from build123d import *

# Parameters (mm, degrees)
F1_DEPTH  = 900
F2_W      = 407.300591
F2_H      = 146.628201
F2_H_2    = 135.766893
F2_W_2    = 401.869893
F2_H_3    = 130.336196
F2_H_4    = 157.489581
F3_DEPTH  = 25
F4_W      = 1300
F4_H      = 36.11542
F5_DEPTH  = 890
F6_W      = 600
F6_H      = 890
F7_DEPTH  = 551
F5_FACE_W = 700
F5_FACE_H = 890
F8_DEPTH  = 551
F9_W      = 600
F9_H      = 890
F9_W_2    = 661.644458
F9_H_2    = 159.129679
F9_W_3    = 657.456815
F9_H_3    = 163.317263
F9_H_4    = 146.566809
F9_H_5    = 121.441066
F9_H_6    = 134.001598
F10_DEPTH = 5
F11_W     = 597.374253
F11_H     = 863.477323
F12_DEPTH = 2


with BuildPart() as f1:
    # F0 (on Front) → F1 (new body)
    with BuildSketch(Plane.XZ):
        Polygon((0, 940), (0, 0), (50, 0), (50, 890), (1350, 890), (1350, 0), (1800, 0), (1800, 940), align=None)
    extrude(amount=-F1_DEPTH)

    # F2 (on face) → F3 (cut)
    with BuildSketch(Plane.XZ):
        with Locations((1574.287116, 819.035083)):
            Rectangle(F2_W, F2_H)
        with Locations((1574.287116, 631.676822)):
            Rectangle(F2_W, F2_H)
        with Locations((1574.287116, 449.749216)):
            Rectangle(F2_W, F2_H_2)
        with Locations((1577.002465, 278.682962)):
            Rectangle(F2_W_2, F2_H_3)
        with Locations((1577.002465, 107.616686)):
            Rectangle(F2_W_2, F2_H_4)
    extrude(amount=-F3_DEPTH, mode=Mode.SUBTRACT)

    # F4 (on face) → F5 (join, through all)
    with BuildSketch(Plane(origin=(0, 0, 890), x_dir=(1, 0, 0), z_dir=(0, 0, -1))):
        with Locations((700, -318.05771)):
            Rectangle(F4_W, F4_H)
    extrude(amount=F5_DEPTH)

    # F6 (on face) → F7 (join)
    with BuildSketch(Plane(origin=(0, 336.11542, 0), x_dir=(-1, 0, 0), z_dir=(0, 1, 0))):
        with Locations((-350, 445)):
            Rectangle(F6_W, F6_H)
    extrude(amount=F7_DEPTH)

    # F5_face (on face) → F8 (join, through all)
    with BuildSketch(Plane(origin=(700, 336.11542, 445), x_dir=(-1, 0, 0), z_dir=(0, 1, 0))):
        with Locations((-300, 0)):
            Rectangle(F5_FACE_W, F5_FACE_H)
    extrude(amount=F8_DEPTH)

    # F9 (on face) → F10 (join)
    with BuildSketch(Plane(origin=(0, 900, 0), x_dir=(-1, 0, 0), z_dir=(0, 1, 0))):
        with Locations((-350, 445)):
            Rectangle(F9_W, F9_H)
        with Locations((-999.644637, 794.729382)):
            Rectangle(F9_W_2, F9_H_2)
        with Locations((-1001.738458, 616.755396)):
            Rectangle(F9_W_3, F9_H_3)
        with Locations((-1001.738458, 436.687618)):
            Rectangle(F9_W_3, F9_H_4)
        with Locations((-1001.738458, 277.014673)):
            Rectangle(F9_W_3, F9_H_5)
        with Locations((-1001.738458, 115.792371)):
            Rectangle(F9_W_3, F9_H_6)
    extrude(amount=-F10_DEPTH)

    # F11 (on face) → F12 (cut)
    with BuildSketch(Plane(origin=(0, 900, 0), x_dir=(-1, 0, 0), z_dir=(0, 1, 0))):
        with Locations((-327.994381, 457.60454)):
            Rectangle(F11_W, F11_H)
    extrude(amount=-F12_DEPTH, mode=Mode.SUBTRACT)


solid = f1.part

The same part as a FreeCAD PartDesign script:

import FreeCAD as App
import Part
import Sketcher
Q = App.Units.Quantity

doc = App.newDocument("Part")
body = doc.addObject("PartDesign::Body", "Body")
body.AllowCompound = True

sketch1 = body.newObject("Sketcher::SketchObject", "Sketch")
sketch1.AttachmentSupport = (doc.getObject("XZ_Plane"), [""])
sketch1.MapMode = "FlatFace"
sketch1.addGeometry([
    Part.LineSegment(App.Vector(0, 940, 0), App.Vector(0, 0, 0)),
    Part.LineSegment(App.Vector(0, 0, 0), App.Vector(50, 0, 0)),
    Part.LineSegment(App.Vector(50, 0, 0), App.Vector(50, 890, 0)),
    Part.LineSegment(App.Vector(50, 890, 0), App.Vector(1350, 890, 0)),
    Part.LineSegment(App.Vector(1350, 890, 0), App.Vector(1350, 0, 0)),
    Part.LineSegment(App.Vector(1350, 0, 0), App.Vector(1800, 0, 0)),
    Part.LineSegment(App.Vector(1800, 0, 0), App.Vector(1800, 940, 0)),
    Part.LineSegment(App.Vector(1800, 940, 0), App.Vector(0, 940, 0)),
], False)
sketch1.addConstraint([
    Sketcher.Constraint("Coincident", 0, 2, 1, 1),
    Sketcher.Constraint("Coincident", 1, 2, 2, 1),
    Sketcher.Constraint("Coincident", 2, 2, 3, 1),
    Sketcher.Constraint("Coincident", 3, 2, 4, 1),
    Sketcher.Constraint("Coincident", 4, 2, 5, 1),
    Sketcher.Constraint("Coincident", 5, 2, 6, 1),
    Sketcher.Constraint("Coincident", 6, 2, 7, 1),
    Sketcher.Constraint("Coincident", 7, 2, 0, 1),
    Sketcher.Constraint("Vertical", 0),
    Sketcher.Constraint("Horizontal", 1),
    Sketcher.Constraint("Vertical", 2),
    Sketcher.Constraint("Horizontal", 3),
    Sketcher.Constraint("Vertical", 4),
    Sketcher.Constraint("Horizontal", 5),
    Sketcher.Constraint("Vertical", 6),
    Sketcher.Constraint("Horizontal", 7),
    Sketcher.Constraint("Coincident", 0, 2, -1, 1),
    Sketcher.Constraint("PointOnObject", 4, 2, -1),
    Sketcher.Constraint("DistanceX", 1, 1, 1, 2, Q("50 mm")),
    Sketcher.Constraint("DistanceX", 3, 1, 3, 2, Q("1300 mm")),
    Sketcher.Constraint("DistanceX", 5, 1, 5, 2, Q("450 mm")),
    Sketcher.Constraint("DistanceY", 0, 2, 0, 1, Q("940 mm")),
    Sketcher.Constraint("DistanceY", 2, 1, 2, 2, Q("890 mm")),
])
pad1 = body.newObject("PartDesign::Pad", "Pad")
pad1.Profile = sketch1
pad1.Length = 900
pad1.Reversed = True

sketch2 = body.newObject("Sketcher::SketchObject", "Sketch001")
sketch2.AttachmentSupport = (doc.getObject("XZ_Plane"), [""])
sketch2.MapMode = "FlatFace"
sketch2.addGeometry([
    Part.LineSegment(App.Vector(1370.636821, 892.349183, 0), App.Vector(1370.636821, 745.720982, 0)),
    Part.LineSegment(App.Vector(1370.636821, 745.720982, 0), App.Vector(1777.937412, 745.720982, 0)),
    Part.LineSegment(App.Vector(1777.937412, 745.720982, 0), App.Vector(1777.937412, 892.349183, 0)),
    Part.LineSegment(App.Vector(1777.937412, 892.349183, 0), App.Vector(1370.636821, 892.349183, 0)),
    Part.LineSegment(App.Vector(1370.636821, 704.990923, 0), App.Vector(1370.636821, 558.362722, 0)),
    Part.LineSegment(App.Vector(1370.636821, 558.362722, 0), App.Vector(1777.937412, 558.362722, 0)),
    Part.LineSegment(App.Vector(1777.937412, 558.362722, 0), App.Vector(1777.937412, 704.990923, 0)),
    Part.LineSegment(App.Vector(1777.937412, 704.990923, 0), App.Vector(1370.636821, 704.990923, 0)),
    Part.LineSegment(App.Vector(1370.636821, 517.632663, 0), App.Vector(1370.636821, 381.865769, 0)),
    Part.LineSegment(App.Vector(1370.636821, 381.865769, 0), App.Vector(1777.937412, 381.865769, 0)),
    Part.LineSegment(App.Vector(1777.937412, 381.865769, 0), App.Vector(1777.937412, 517.632663, 0)),
    Part.LineSegment(App.Vector(1777.937412, 517.632663, 0), App.Vector(1370.636821, 517.632663, 0)),
    Part.LineSegment(App.Vector(1376.067519, 343.85106, 0), App.Vector(1376.067519, 213.514864, 0)),
    Part.LineSegment(App.Vector(1376.067519, 213.514864, 0), App.Vector(1777.937412, 213.514864, 0)),
    Part.LineSegment(App.Vector(1777.937412, 213.514864, 0), App.Vector(1777.937412, 343.85106, 0)),
    Part.LineSegment(App.Vector(1777.937412, 343.85106, 0), App.Vector(1376.067519, 343.85106, 0)),
    Part.LineSegment(App.Vector(1376.067519, 186.361477, 0), App.Vector(1376.067519, 28.871896, 0)),
    Part.LineSegment(App.Vector(1376.067519, 28.871896, 0), App.Vector(1777.937412, 28.871896, 0)),
    Part.LineSegment(App.Vector(1777.937412, 28.871896, 0), App.Vector(1777.937412, 186.361477, 0)),
    Part.LineSegment(App.Vector(1777.937412, 186.361477, 0), App.Vector(1376.067519, 186.361477, 0)),
], False)
sketch2.addConstraint([
    Sketcher.Constraint("Coincident", 0, 2, 1, 1),
    Sketcher.Constraint("Coincident", 1, 2, 2, 1),
    Sketcher.Constraint("Coincident", 2, 2, 3, 1),
    Sketcher.Constraint("Coincident", 3, 2, 0, 1),
    Sketcher.Constraint("Coincident", 4, 2, 5, 1),
    Sketcher.Constraint("Coincident", 5, 2, 6, 1),
    Sketcher.Constraint("Coincident", 6, 2, 7, 1),
    Sketcher.Constraint("Coincident", 7, 2, 4, 1),
    Sketcher.Constraint("Coincident", 8, 2, 9, 1),
    Sketcher.Constraint("Coincident", 9, 2, 10, 1),
    Sketcher.Constraint("Coincident", 10, 2, 11, 1),
    Sketcher.Constraint("Coincident", 11, 2, 8, 1),
    Sketcher.Constraint("Coincident", 12, 2, 13, 1),
    Sketcher.Constraint("Coincident", 13, 2, 14, 1),
    Sketcher.Constraint("Coincident", 14, 2, 15, 1),
    Sketcher.Constraint("Coincident", 15, 2, 12, 1),
    Sketcher.Constraint("Coincident", 16, 2, 17, 1),
    Sketcher.Constraint("Coincident", 17, 2, 18, 1),
    Sketcher.Constraint("Coincident", 18, 2, 19, 1),
    Sketcher.Constraint("Coincident", 19, 2, 16, 1),
    Sketcher.Constraint("Vertical", 0),
    Sketcher.Constraint("Horizontal", 1),
    Sketcher.Constraint("Vertical", 2),
    Sketcher.Constraint("Horizontal", 3),
    Sketcher.Constraint("Vertical", 4),
    Sketcher.Constraint("Horizontal", 5),
    Sketcher.Constraint("Vertical", 6),
    Sketcher.Constraint("Horizontal", 7),
    Sketcher.Constraint("Vertical", 8),
    Sketcher.Constraint("Horizontal", 9),
    Sketcher.Constraint("Vertical", 10),
    Sketcher.Constraint("Horizontal", 11),
    Sketcher.Constraint("Vertical", 12),
    Sketcher.Constraint("Horizontal", 13),
    Sketcher.Constraint("Vertical", 14),
    Sketcher.Constraint("Horizontal", 15),
    Sketcher.Constraint("Vertical", 16),
    Sketcher.Constraint("Horizontal", 17),
    Sketcher.Constraint("Vertical", 18),
    Sketcher.Constraint("Horizontal", 19),
    Sketcher.Constraint("Vertical", 3, 2, 4, 2),
    Sketcher.Constraint("Vertical", 2, 2, 5, 2),
    Sketcher.Constraint("Vertical", 7, 2, 8, 2),
    Sketcher.Constraint("Vertical", 6, 2, 9, 2),
    Sketcher.Constraint("Vertical", 10, 2, 13, 2),
    Sketcher.Constraint("Vertical", 15, 2, 16, 2),
    Sketcher.Constraint("Vertical", 14, 2, 17, 2),
    Sketcher.Constraint("Equal", 2, 4),
    Sketcher.Constraint("DistanceY", 0, 2, 0, 1, Q("146.628201 mm")),
    Sketcher.Constraint("DistanceX", 1, 1, 1, 2, Q("407.300591 mm")),
    Sketcher.Constraint("DistanceY", 16, 2, 16, 1, Q("157.489581 mm")),
    Sketcher.Constraint("DistanceY", 12, 2, 11, 2, Q("304.117799 mm")),
    Sketcher.Constraint("DistanceX", 13, 1, 13, 2, Q("401.869893 mm")),
    Sketcher.Constraint("DistanceY", 8, 2, 8, 1, Q("135.766893 mm")),
    Sketcher.Constraint("DistanceY", 12, 2, 12, 1, Q("130.336196 mm")),
    Sketcher.Constraint("DistanceX", -1, 1, 0, 2, Q("1370.636821 mm")),
    Sketcher.Constraint("DistanceY", -1, 1, 4, 2, Q("558.362722 mm")),
    Sketcher.Constraint("DistanceY", -1, 1, 8, 2, Q("381.865769 mm")),
    Sketcher.Constraint("DistanceY", 4, 2, 0, 2, Q("187.358261 mm")),
    Sketcher.Constraint("DistanceY", 16, 2, 12, 2, Q("184.642968 mm")),
])
pocket1 = body.newObject("PartDesign::Pocket", "Pocket")
pocket1.Profile = sketch2
pocket1.Length = 25

sketch3 = body.newObject("Sketcher::SketchObject", "Sketch002")
sketch3.AttachmentSupport = (doc.getObject("XY_Plane"), [""])
sketch3.MapMode = "FlatFace"
sketch3.AttachmentOffset = App.Placement(App.Vector(0, 0, 890), App.Rotation())
sketch3.addGeometry([
    Part.LineSegment(App.Vector(50, 300, 0), App.Vector(50, 336.11542, 0)),
    Part.LineSegment(App.Vector(50, 336.11542, 0), App.Vector(1350, 336.11542, 0)),
    Part.LineSegment(App.Vector(1350, 336.11542, 0), App.Vector(1350, 300, 0)),
    Part.LineSegment(App.Vector(1350, 300, 0), App.Vector(50, 300, 0)),
], False)
sketch3.addConstraint([
    Sketcher.Constraint("Coincident", 0, 2, 1, 1),
    Sketcher.Constraint("Coincident", 1, 2, 2, 1),
    Sketcher.Constraint("Coincident", 2, 2, 3, 1),
    Sketcher.Constraint("Coincident", 3, 2, 0, 1),
    Sketcher.Constraint("Vertical", 0),
    Sketcher.Constraint("Horizontal", 1),
    Sketcher.Constraint("Vertical", 2),
    Sketcher.Constraint("Horizontal", 3),
    Sketcher.Constraint("DistanceX", 1, 1, 1, 2, Q("1300 mm")),
    Sketcher.Constraint("DistanceX", -1, 1, 0, 2, Q("50 mm")),
    Sketcher.Constraint("DistanceY", -1, 1, 2, 2, Q("300 mm")),
    Sketcher.Constraint("DistanceY", 0, 1, 0, 2, Q("36.11542 mm")),
])
pad2 = body.newObject("PartDesign::Pad", "Pad001")
pad2.Profile = sketch3
pad2.Length = 890
pad2.Reversed = True

sketch4 = body.newObject("Sketcher::SketchObject", "Sketch003")
sketch4.AttachmentSupport = (doc.getObject("XZ_Plane"), [""])
sketch4.MapMode = "FlatFace"
sketch4.AttachmentOffset = App.Placement(App.Vector(0, 0, -336.11542), App.Rotation())
sketch4.addGeometry([
    Part.LineSegment(App.Vector(650, 890, 0), App.Vector(650, 0, 0)),
    Part.LineSegment(App.Vector(650, 0, 0), App.Vector(50, 0, 0)),
    Part.LineSegment(App.Vector(50, 0, 0), App.Vector(50, 890, 0)),
    Part.LineSegment(App.Vector(50, 890, 0), App.Vector(650, 890, 0)),
], False)
sketch4.addConstraint([
    Sketcher.Constraint("Coincident", 0, 2, 1, 1),
    Sketcher.Constraint("Coincident", 1, 2, 2, 1),
    Sketcher.Constraint("Coincident", 2, 2, 3, 1),
    Sketcher.Constraint("Coincident", 3, 2, 0, 1),
    Sketcher.Constraint("Vertical", 0),
    Sketcher.Constraint("Horizontal", 1),
    Sketcher.Constraint("Vertical", 2),
    Sketcher.Constraint("Horizontal", 3),
    Sketcher.Constraint("PointOnObject", 0, 2, -1),
    Sketcher.Constraint("DistanceX", 1, 2, 1, 1, Q("600 mm")),
    Sketcher.Constraint("DistanceY", 0, 2, 0, 1, Q("890 mm")),
    Sketcher.Constraint("DistanceX", -1, 1, 0, 2, Q("650 mm")),
])
pad3 = body.newObject("PartDesign::Pad", "Pad002")
pad3.Profile = sketch4
pad3.Length = 551
pad3.Reversed = True

sketch5 = body.newObject("Sketcher::SketchObject", "Sketch004")
sketch5.AttachmentSupport = (doc.getObject("XZ_Plane"), [""])
sketch5.MapMode = "FlatFace"
sketch5.AttachmentOffset = App.Placement(App.Vector(0, 0, -336.11542), App.Rotation())
sketch5.addGeometry([
    Part.LineSegment(App.Vector(1350, 890, 0), App.Vector(1350, 0, 0)),
    Part.LineSegment(App.Vector(1350, 0, 0), App.Vector(650, 0, 0)),
    Part.LineSegment(App.Vector(650, 0, 0), App.Vector(650, 890, 0)),
    Part.LineSegment(App.Vector(650, 890, 0), App.Vector(1350, 890, 0)),
], False)
sketch5.addConstraint([
    Sketcher.Constraint("Coincident", 0, 2, 1, 1),
    Sketcher.Constraint("Coincident", 1, 2, 2, 1),
    Sketcher.Constraint("Coincident", 2, 2, 3, 1),
    Sketcher.Constraint("Coincident", 3, 2, 0, 1),
    Sketcher.Constraint("Vertical", 0),
    Sketcher.Constraint("Horizontal", 1),
    Sketcher.Constraint("Vertical", 2),
    Sketcher.Constraint("Horizontal", 3),
    Sketcher.Constraint("PointOnObject", 0, 2, -1),
    Sketcher.Constraint("DistanceX", 1, 2, 1, 1, Q("700 mm")),
    Sketcher.Constraint("DistanceY", 0, 2, 0, 1, Q("890 mm")),
    Sketcher.Constraint("DistanceX", -1, 1, 0, 2, Q("1350 mm")),
])
pad4 = body.newObject("PartDesign::Pad", "Pad003")
pad4.Profile = sketch5
pad4.Length = 551
pad4.Reversed = True

sketch6 = body.newObject("Sketcher::SketchObject", "Sketch005")
sketch6.AttachmentSupport = (doc.getObject("XZ_Plane"), [""])
sketch6.MapMode = "FlatFace"
sketch6.AttachmentOffset = App.Placement(App.Vector(0, 0, -900), App.Rotation())
sketch6.addGeometry([
    Part.LineSegment(App.Vector(650, 890, 0), App.Vector(650, 0, 0)),
    Part.LineSegment(App.Vector(650, 0, 0), App.Vector(50, 0, 0)),
    Part.LineSegment(App.Vector(50, 0, 0), App.Vector(50, 890, 0)),
    Part.LineSegment(App.Vector(50, 890, 0), App.Vector(650, 890, 0)),
    Part.LineSegment(App.Vector(1330.466866, 874.294222, 0), App.Vector(1330.466866, 715.164543, 0)),
    Part.LineSegment(App.Vector(1330.466866, 715.164543, 0), App.Vector(668.822408, 715.164543, 0)),
    Part.LineSegment(App.Vector(668.822408, 715.164543, 0), App.Vector(668.822408, 874.294222, 0)),
    Part.LineSegment(App.Vector(668.822408, 874.294222, 0), App.Vector(1330.466866, 874.294222, 0)),
    Part.LineSegment(App.Vector(1330.466866, 698.414027, 0), App.Vector(1330.466866, 535.096764, 0)),
    Part.LineSegment(App.Vector(1330.466866, 535.096764, 0), App.Vector(673.010051, 535.096764, 0)),
    Part.LineSegment(App.Vector(673.010051, 535.096764, 0), App.Vector(673.010051, 698.414027, 0)),
    Part.LineSegment(App.Vector(673.010051, 698.414027, 0), App.Vector(1330.466866, 698.414027, 0)),
    Part.LineSegment(App.Vector(1330.466866, 509.971023, 0), App.Vector(1330.466866, 363.404214, 0)),
    Part.LineSegment(App.Vector(1330.466866, 363.404214, 0), App.Vector(673.010051, 363.404214, 0)),
    Part.LineSegment(App.Vector(673.010051, 363.404214, 0), App.Vector(673.010051, 509.971023, 0)),
    Part.LineSegment(App.Vector(673.010051, 509.971023, 0), App.Vector(1330.466866, 509.971023, 0)),
    Part.LineSegment(App.Vector(1330.466866, 337.735206, 0), App.Vector(1330.466866, 216.29414, 0)),
    Part.LineSegment(App.Vector(1330.466866, 216.29414, 0), App.Vector(673.010051, 216.29414, 0)),
    Part.LineSegment(App.Vector(673.010051, 216.29414, 0), App.Vector(673.010051, 337.735206, 0)),
    Part.LineSegment(App.Vector(673.010051, 337.735206, 0), App.Vector(1330.466866, 337.735206, 0)),
    Part.LineSegment(App.Vector(1330.466866, 182.79317, 0), App.Vector(1330.466866, 48.791572, 0)),
    Part.LineSegment(App.Vector(1330.466866, 48.791572, 0), App.Vector(673.010051, 48.791572, 0)),
    Part.LineSegment(App.Vector(673.010051, 48.791572, 0), App.Vector(673.010051, 182.79317, 0)),
    Part.LineSegment(App.Vector(673.010051, 182.79317, 0), App.Vector(1330.466866, 182.79317, 0)),
], False)
sketch6.addConstraint([
    Sketcher.Constraint("Coincident", 0, 2, 1, 1),
    Sketcher.Constraint("Coincident", 1, 2, 2, 1),
    Sketcher.Constraint("Coincident", 2, 2, 3, 1),
    Sketcher.Constraint("Coincident", 3, 2, 0, 1),
    Sketcher.Constraint("Coincident", 4, 2, 5, 1),
    Sketcher.Constraint("Coincident", 5, 2, 6, 1),
    Sketcher.Constraint("Coincident", 6, 2, 7, 1),
    Sketcher.Constraint("Coincident", 7, 2, 4, 1),
    Sketcher.Constraint("Coincident", 8, 2, 9, 1),
    Sketcher.Constraint("Coincident", 9, 2, 10, 1),
    Sketcher.Constraint("Coincident", 10, 2, 11, 1),
    Sketcher.Constraint("Coincident", 11, 2, 8, 1),
    Sketcher.Constraint("Coincident", 12, 2, 13, 1),
    Sketcher.Constraint("Coincident", 13, 2, 14, 1),
    Sketcher.Constraint("Coincident", 14, 2, 15, 1),
    Sketcher.Constraint("Coincident", 15, 2, 12, 1),
    Sketcher.Constraint("Coincident", 16, 2, 17, 1),
    Sketcher.Constraint("Coincident", 17, 2, 18, 1),
    Sketcher.Constraint("Coincident", 18, 2, 19, 1),
    Sketcher.Constraint("Coincident", 19, 2, 16, 1),
    Sketcher.Constraint("Coincident", 20, 2, 21, 1),
    Sketcher.Constraint("Coincident", 21, 2, 22, 1),
    Sketcher.Constraint("Coincident", 22, 2, 23, 1),
    Sketcher.Constraint("Coincident", 23, 2, 20, 1),
    Sketcher.Constraint("Vertical", 0),
    Sketcher.Constraint("Horizontal", 1),
    Sketcher.Constraint("Vertical", 2),
    Sketcher.Constraint("Horizontal", 3),
    Sketcher.Constraint("Vertical", 4),
    Sketcher.Constraint("Horizontal", 5),
    Sketcher.Constraint("Vertical", 6),
    Sketcher.Constraint("Horizontal", 7),
    Sketcher.Constraint("Vertical", 8),
    Sketcher.Constraint("Horizontal", 9),
    Sketcher.Constraint("Vertical", 10),
    Sketcher.Constraint("Horizontal", 11),
    Sketcher.Constraint("Vertical", 12),
    Sketcher.Constraint("Horizontal", 13),
    Sketcher.Constraint("Vertical", 14),
    Sketcher.Constraint("Horizontal", 15),
    Sketcher.Constraint("Vertical", 16),
    Sketcher.Constraint("Horizontal", 17),
    Sketcher.Constraint("Vertical", 18),
    Sketcher.Constraint("Horizontal", 19),
    Sketcher.Constraint("Vertical", 20),
    Sketcher.Constraint("Horizontal", 21),
    Sketcher.Constraint("Vertical", 22),
    Sketcher.Constraint("Horizontal", 23),
    Sketcher.Constraint("PointOnObject", 0, 2, -1),
    Sketcher.Constraint("Vertical", 7, 2, 8, 2),
    Sketcher.Constraint("Vertical", 11, 2, 12, 2),
    Sketcher.Constraint("Vertical", 10, 2, 13, 2),
    Sketcher.Constraint("Vertical", 15, 2, 16, 2),
    Sketcher.Constraint("Vertical", 14, 2, 17, 2),
    Sketcher.Constraint("Vertical", 19, 2, 20, 2),
    Sketcher.Constraint("Vertical", 18, 2, 21, 2),
    Sketcher.Constraint("DistanceX", 1, 2, 1, 1, Q("600 mm")),
    Sketcher.Constraint("DistanceY", 0, 2, 0, 1, Q("890 mm")),
    Sketcher.Constraint("DistanceX", -1, 1, 0, 2, Q("650 mm")),
    Sketcher.Constraint("DistanceY", 20, 2, 20, 1, Q("134.001598 mm")),
    Sketcher.Constraint("DistanceX", 5, 2, 5, 1, Q("661.644458 mm")),
    Sketcher.Constraint("DistanceY", 4, 2, 4, 1, Q("159.129679 mm")),
    Sketcher.Constraint("DistanceY", 12, 2, 12, 1, Q("146.566809 mm")),
    Sketcher.Constraint("DistanceY", 14, 2, 6, 2, Q("364.323199 mm")),
    Sketcher.Constraint("DistanceX", 9, 2, 9, 1, Q("657.456815 mm")),
    Sketcher.Constraint("DistanceY", 8, 2, 8, 1, Q("163.317263 mm")),
    Sketcher.Constraint("DistanceY", 16, 2, 16, 1, Q("121.441066 mm")),
    Sketcher.Constraint("DistanceX", -1, 1, 5, 2, Q("668.822408 mm")),
    Sketcher.Constraint("DistanceY", -1, 1, 6, 2, Q("874.294222 mm")),
    Sketcher.Constraint("DistanceY", -1, 1, 16, 2, Q("216.29414 mm")),
    Sketcher.Constraint("DistanceY", -1, 1, 22, 2, Q("182.79317 mm")),
    Sketcher.Constraint("DistanceY", 8, 2, 4, 2, Q("180.067778 mm")),
])
pad5 = body.newObject("PartDesign::Pad", "Pad004")
pad5.Profile = sketch6
pad5.Length = 5

sketch7 = body.newObject("Sketcher::SketchObject", "Sketch006")
sketch7.AttachmentSupport = (doc.getObject("XZ_Plane"), [""])
sketch7.MapMode = "FlatFace"
sketch7.AttachmentOffset = App.Placement(App.Vector(0, 0, -900), App.Rotation())
sketch7.addGeometry([
    Part.LineSegment(App.Vector(626.681507, 889.343201, 0), App.Vector(626.681507, 25.865879, 0)),
    Part.LineSegment(App.Vector(626.681507, 25.865879, 0), App.Vector(29.307254, 25.865879, 0)),
    Part.LineSegment(App.Vector(29.307254, 25.865879, 0), App.Vector(29.307254, 889.343201, 0)),
    Part.LineSegment(App.Vector(29.307254, 889.343201, 0), App.Vector(626.681507, 889.343201, 0)),
], False)
sketch7.addConstraint([
    Sketcher.Constraint("Coincident", 0, 2, 1, 1),
    Sketcher.Constraint("Coincident", 1, 2, 2, 1),
    Sketcher.Constraint("Coincident", 2, 2, 3, 1),
    Sketcher.Constraint("Coincident", 3, 2, 0, 1),
    Sketcher.Constraint("Vertical", 0),
    Sketcher.Constraint("Horizontal", 1),
    Sketcher.Constraint("Vertical", 2),
    Sketcher.Constraint("Horizontal", 3),
    Sketcher.Constraint("DistanceY", -1, 1, 2, 2, Q("889.343201 mm")),
    Sketcher.Constraint("DistanceX", 1, 2, 1, 1, Q("597.374253 mm")),
    Sketcher.Constraint("DistanceY", 0, 2, 0, 1, Q("863.477323 mm")),
    Sketcher.Constraint("DistanceX", -1, 1, 0, 2, Q("626.681507 mm")),
])
pocket2 = body.newObject("PartDesign::Pocket", "Pocket001")
pocket2.Profile = sketch7
pocket2.Length = 2
pocket2.Reversed = True

doc.recompute()
